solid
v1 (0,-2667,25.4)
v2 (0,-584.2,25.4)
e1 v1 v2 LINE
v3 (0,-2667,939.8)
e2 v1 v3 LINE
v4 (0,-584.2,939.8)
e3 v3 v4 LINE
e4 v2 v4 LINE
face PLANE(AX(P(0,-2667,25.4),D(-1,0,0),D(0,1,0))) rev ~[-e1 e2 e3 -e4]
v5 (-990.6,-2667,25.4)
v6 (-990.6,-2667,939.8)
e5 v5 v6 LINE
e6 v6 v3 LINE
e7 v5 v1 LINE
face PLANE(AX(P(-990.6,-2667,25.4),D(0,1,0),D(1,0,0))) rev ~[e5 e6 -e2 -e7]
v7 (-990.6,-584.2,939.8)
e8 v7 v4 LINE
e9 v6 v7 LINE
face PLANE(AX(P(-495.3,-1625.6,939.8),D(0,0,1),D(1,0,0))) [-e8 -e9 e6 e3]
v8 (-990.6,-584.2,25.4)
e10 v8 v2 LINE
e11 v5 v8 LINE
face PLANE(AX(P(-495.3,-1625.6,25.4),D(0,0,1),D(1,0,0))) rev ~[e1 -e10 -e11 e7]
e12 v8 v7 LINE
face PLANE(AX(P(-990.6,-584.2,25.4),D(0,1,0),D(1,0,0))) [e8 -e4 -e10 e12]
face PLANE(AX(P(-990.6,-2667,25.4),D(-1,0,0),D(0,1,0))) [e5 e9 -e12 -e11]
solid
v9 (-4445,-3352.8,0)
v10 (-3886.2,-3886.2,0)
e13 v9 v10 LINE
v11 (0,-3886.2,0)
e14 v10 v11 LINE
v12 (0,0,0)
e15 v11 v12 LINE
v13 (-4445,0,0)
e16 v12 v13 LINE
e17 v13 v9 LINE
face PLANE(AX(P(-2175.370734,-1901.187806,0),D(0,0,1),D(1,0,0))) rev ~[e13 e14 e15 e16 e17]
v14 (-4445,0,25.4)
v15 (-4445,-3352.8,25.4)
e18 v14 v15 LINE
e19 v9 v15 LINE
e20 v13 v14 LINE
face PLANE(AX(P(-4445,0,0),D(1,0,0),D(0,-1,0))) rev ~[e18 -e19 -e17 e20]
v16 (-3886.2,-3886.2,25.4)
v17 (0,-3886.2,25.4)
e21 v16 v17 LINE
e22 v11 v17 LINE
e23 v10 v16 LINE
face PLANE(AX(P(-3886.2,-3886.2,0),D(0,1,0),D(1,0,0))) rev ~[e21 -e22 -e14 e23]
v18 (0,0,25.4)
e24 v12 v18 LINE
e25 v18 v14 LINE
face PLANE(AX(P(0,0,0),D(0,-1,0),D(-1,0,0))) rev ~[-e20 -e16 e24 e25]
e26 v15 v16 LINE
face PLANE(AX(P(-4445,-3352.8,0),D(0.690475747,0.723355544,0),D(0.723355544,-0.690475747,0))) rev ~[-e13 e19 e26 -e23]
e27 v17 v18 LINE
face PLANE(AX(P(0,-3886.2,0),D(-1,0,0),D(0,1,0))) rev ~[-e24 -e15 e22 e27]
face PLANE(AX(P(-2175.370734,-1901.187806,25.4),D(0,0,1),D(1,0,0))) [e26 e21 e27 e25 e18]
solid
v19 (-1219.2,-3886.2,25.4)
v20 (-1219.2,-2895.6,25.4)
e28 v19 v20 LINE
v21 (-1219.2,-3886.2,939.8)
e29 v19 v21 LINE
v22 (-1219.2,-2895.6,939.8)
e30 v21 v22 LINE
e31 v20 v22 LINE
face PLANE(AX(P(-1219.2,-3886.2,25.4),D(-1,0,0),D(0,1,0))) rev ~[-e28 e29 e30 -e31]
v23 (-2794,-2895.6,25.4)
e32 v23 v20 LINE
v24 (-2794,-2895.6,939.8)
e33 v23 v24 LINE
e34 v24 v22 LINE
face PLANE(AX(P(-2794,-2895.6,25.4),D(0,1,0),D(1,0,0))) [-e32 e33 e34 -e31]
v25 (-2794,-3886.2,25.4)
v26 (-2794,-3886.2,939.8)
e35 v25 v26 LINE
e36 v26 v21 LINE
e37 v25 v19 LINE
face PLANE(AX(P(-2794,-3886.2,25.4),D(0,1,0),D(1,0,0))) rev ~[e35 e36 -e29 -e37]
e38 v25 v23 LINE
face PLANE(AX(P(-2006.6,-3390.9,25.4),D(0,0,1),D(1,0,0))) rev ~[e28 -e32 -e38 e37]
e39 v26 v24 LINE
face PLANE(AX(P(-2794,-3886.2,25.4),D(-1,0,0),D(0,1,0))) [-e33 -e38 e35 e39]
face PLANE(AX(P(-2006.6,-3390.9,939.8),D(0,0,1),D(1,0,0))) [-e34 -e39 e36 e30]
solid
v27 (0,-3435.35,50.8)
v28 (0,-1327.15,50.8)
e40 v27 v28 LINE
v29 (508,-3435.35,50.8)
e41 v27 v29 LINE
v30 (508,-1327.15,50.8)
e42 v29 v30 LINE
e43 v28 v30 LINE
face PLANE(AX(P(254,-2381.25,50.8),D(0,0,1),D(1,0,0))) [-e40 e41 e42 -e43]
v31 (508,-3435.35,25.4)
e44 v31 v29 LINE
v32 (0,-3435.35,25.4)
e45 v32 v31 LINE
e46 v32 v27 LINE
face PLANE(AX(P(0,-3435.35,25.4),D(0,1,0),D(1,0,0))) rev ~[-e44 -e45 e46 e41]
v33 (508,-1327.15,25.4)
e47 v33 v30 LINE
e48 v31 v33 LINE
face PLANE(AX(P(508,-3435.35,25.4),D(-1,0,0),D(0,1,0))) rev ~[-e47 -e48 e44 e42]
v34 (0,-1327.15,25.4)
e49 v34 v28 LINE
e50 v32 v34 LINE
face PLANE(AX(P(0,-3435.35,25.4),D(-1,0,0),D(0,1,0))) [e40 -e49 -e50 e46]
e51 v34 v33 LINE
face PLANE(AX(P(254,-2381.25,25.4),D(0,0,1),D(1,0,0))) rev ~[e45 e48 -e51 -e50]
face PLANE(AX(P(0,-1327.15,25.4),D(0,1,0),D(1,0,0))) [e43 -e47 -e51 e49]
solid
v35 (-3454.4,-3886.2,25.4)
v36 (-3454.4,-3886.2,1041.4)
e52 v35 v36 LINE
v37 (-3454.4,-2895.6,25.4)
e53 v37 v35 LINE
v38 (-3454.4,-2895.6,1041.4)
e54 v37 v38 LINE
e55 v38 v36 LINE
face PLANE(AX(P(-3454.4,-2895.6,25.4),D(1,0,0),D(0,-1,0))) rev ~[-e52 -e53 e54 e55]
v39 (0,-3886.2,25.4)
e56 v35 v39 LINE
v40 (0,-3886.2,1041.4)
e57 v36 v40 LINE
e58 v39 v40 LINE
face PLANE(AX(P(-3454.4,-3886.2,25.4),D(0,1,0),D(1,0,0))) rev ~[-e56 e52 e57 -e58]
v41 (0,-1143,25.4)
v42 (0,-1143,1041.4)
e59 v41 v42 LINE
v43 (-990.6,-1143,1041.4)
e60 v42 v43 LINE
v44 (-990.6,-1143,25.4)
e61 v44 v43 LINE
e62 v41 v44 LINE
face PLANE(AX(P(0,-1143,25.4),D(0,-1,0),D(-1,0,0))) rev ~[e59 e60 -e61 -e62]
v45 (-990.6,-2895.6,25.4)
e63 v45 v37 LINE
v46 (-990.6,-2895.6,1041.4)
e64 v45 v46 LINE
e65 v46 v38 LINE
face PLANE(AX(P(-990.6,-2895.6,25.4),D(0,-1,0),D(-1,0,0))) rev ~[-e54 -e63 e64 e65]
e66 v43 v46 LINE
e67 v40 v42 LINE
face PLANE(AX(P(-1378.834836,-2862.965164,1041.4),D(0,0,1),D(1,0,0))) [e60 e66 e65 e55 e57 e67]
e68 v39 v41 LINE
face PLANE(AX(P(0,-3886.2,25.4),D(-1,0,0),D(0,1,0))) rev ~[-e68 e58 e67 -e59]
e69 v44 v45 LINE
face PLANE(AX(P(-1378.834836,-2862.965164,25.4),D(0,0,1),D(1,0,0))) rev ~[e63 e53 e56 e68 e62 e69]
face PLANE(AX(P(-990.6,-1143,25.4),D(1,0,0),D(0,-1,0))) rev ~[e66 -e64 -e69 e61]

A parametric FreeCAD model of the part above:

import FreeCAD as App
import Part
import Sketcher
Q = App.Units.Quantity

doc = App.newDocument("Part")
body = doc.addObject("PartDesign::Body", "Body")

# Sketch on XY plane
sketch1 = body.newObject("Sketcher::SketchObject", "Sketch")
sketch1.AttachmentSupport = (doc.getObject("XY_Plane"), [""])
sketch1.MapMode = "FlatFace"
sketch1.addGeometry([
    Part.LineSegment(App.Vector(0, -3886.2, 0), App.Vector(0, 0, 0)),  # 0
    Part.LineSegment(App.Vector(0, 0, 0), App.Vector(-4445, 0, 0)),  # 1
    Part.LineSegment(App.Vector(-4445, 0, 0), App.Vector(-4445, -3352.8, 0)),  # 2
    Part.LineSegment(App.Vector(-4445, -3352.8, 0), App.Vector(-3886.2, -3886.2, 0)),  # 3
    Part.LineSegment(App.Vector(-3886.2, -3886.2, 0), App.Vector(0, -3886.2, 0)),  # 4
], False)
sketch1.addConstraint([
    Sketcher.Constraint("Coincident", 0, 2, 1, 1),
    Sketcher.Constraint("Coincident", 1, 2, 2, 1),
    Sketcher.Constraint("Coincident", 2, 2, 3, 1),
    Sketcher.Constraint("Coincident", 3, 2, 4, 1),
    Sketcher.Constraint("Coincident", 4, 2, 0, 1),
    Sketcher.Constraint("Vertical", 0),
    Sketcher.Constraint("Horizontal", 1),
    Sketcher.Constraint("Vertical", 2),
    Sketcher.Constraint("Horizontal", 4),
    Sketcher.Constraint("Coincident", 0, 2, -1, 1),
    Sketcher.Constraint("Equal", 4, 0),
    Sketcher.Constraint("DistanceX", 1, 2, 1, 1, Q("175 in")),
    Sketcher.Constraint("DistanceX", 4, 1, 4, 2, Q("153 in")),
    Sketcher.Constraint("DistanceY", 2, 2, 2, 1, Q("132 in")),
])
pad1 = body.newObject("PartDesign::Pad", "Pad")
pad1.Profile = sketch1
pad1.Length = Q("1 in")
body2 = doc.addObject("PartDesign::Body", "Body001")

# Sketch on XY plane
sketch2 = body2.newObject("Sketcher::SketchObject", "Sketch001")
sketch2.AttachmentSupport = (doc.getObject("XY_Plane001"), [""])
sketch2.MapMode = "FlatFace"
sketch2.AttachmentOffset = App.Placement(App.Vector(0, 0, 1 * 25.4), App.Rotation())
sketch2.addGeometry([
    Part.LineSegment(App.Vector(0, -1327.15, 0), App.Vector(0, -3435.35, 0)),
    Part.LineSegment(App.Vector(0, -3435.35, 0), App.Vector(508, -3435.35, 0)),
    Part.LineSegment(App.Vector(508, -3435.35, 0), App.Vector(508, -1327.15, 0)),
    Part.LineSegment(App.Vector(508, -1327.15, 0), App.Vector(0, -1327.15, 0)),
], False)
sketch2.addConstraint([
    Sketcher.Constraint("Coincident", 0, 2, 1, 1),
    Sketcher.Constraint("Coincident", 1, 2, 2, 1),
    Sketcher.Constraint("Coincident", 2, 2, 3, 1),
    Sketcher.Constraint("Coincident", 3, 2, 0, 1),
    Sketcher.Constraint("Vertical", 0),
    Sketcher.Constraint("Horizontal", 1),
    Sketcher.Constraint("Vertical", 2),
    Sketcher.Constraint("Horizontal", 3),
    Sketcher.Constraint("PointOnObject", 0, 2, -2),
    Sketcher.Constraint("DistanceX", 1, 1, 1, 2, Q("20 in")),
    Sketcher.Constraint("DistanceY", 0, 2, 0, 1, Q("83 in")),
    Sketcher.Constraint("DistanceY", 0, 2, -1, 1, Q("135.25 in")),
])
pad2 = body2.newObject("PartDesign::Pad", "Pad001")
pad2.Profile = sketch2
pad2.Length = Q("1 in")
body3 = doc.addObject("PartDesign::Body", "Body002")
body3.AllowCompound = True

# Sketch on XY plane
sketch3 = body3.newObject("Sketcher::SketchObject", "Sketch002")
sketch3.AttachmentSupport = (doc.getObject("XY_Plane002"), [""])
sketch3.MapMode = "FlatFace"
sketch3.AttachmentOffset = App.Placement(App.Vector(0, 0, 1 * 25.4), App.Rotation())
sketch3.addGeometry([
    Part.LineSegment(App.Vector(-2794, -2895.6, 0), App.Vector(-2794, -3886.2, 0)),  # 0
    Part.LineSegment(App.Vector(-2794, -3886.2, 0), App.Vector(-1219.2, -3886.2, 0)),  # 1
    Part.LineSegment(App.Vector(-1219.2, -3886.2, 0), App.Vector(-1219.2, -2895.6, 0)),  # 2
    Part.LineSegment(App.Vector(-1219.2, -2895.6, 0), App.Vector(-2794, -2895.6, 0)),  # 3
    Part.LineSegment(App.Vector(-990.6, -584.2, 0), App.Vector(-990.6, -2667, 0)),  # 4
    Part.LineSegment(App.Vector(-990.6, -2667, 0), App.Vector(0, -2667, 0)),  # 5
    Part.LineSegment(App.Vector(0, -2667, 0), App.Vector(0, -584.2, 0)),  # 6
    Part.LineSegment(App.Vector(0, -584.2, 0), App.Vector(-990.6, -584.2, 0)),  # 7
], False)
sketch3.addConstraint([
    Sketcher.Constraint("Coincident", 0, 2, 1, 1),
    Sketcher.Constraint("Coincident", 1, 2, 2, 1),
    Sketcher.Constraint("Coincident", 2, 2, 3, 1),
    Sketcher.Constraint("Coincident", 3, 2, 0, 1),
    Sketcher.Constraint("Coincident", 4, 2, 5, 1),
    Sketcher.Constraint("Coincident", 5, 2, 6, 1),
    Sketcher.Constraint("Coincident", 6, 2, 7, 1),
    Sketcher.Constraint("Coincident", 7, 2, 4, 1),
    Sketcher.Constraint("Vertical", 0),
    Sketcher.Constraint("Horizontal", 1),
    Sketcher.Constraint("Vertical", 2),
    Sketcher.Constraint("Horizontal", 3),
    Sketcher.Constraint("Vertical", 4),
    Sketcher.Constraint("Horizontal", 5),
    Sketcher.Constraint("Vertical", 6),
    Sketcher.Constraint("Horizontal", 7),
    Sketcher.Constraint("PointOnObject", 5, 2, -2),
    Sketcher.Constraint("Equal", 7, 0),
    Sketcher.Constraint("DistanceX", 1, 1, 1, 2, Q("62 in")),
    Sketcher.Constraint("DistanceX", 5, 1, 5, 2, Q("39 in")),
    Sketcher.Constraint("DistanceY", 4, 2, 4, 1, Q("82 in")),
    Sketcher.Constraint("DistanceX", 0, 2, -1, 1, Q("110 in")),
    Sketcher.Constraint("DistanceY", 0, 2, -1, 1, Q("153 in")),
    Sketcher.Constraint("DistanceY", 4, 2, -1, 1, Q("105 in")),
])
pad3 = body3.newObject("PartDesign::Pad", "Pad002")
pad3.Profile = sketch3
pad3.Length = Q("36 in")
body4 = doc.addObject("PartDesign::Body", "Body003")

# Sketch on XY plane
sketch4 = body4.newObject("Sketcher::SketchObject", "Sketch003")
sketch4.AttachmentSupport = (doc.getObject("XY_Plane003"), [""])
sketch4.MapMode = "FlatFace"
sketch4.AttachmentOffset = App.Placement(App.Vector(0, 0, 1 * 25.4), App.Rotation())
sketch4.addGeometry([
    Part.LineSegment(App.Vector(-3454.4, -2895.6, 0), App.Vector(-3454.4, -3886.2, 0)),  # 0
    Part.LineSegment(App.Vector(-3454.4, -3886.2, 0), App.Vector(0, -3886.2, 0)),  # 1
    Part.LineSegment(App.Vector(0, -3886.2, 0), App.Vector(0, -1143, 0)),  # 2
    Part.LineSegment(App.Vector(0, -1143, 0), App.Vector(-990.6, -1143, 0)),  # 3
    Part.LineSegment(App.Vector(-990.6, -1143, 0), App.Vector(-990.6, -2895.6, 0)),  # 4
    Part.LineSegment(App.Vector(-990.6, -2895.6, 0), App.Vector(-3454.4, -2895.6, 0)),  # 5
], False)
sketch4.addConstraint([
    Sketcher.Constraint("Coincident", 0, 2, 1, 1),
    Sketcher.Constraint("Coincident", 1, 2, 2, 1),
    Sketcher.Constraint("Coincident", 2, 2, 3, 1),
    Sketcher.Constraint("Coincident", 3, 2, 4, 1),
    Sketcher.Constraint("Coincident", 4, 2, 5, 1),
    Sketcher.Constraint("Coincident", 5, 2, 0, 1),
    Sketcher.Constraint("Vertical", 0),
    Sketcher.Constraint("Horizontal", 1),
    Sketcher.Constraint("Vertical", 2),
    Sketcher.Constraint("Horizontal", 3),
    Sketcher.Constraint("Vertical", 4),
    Sketcher.Constraint("Horizontal", 5),
    Sketcher.Constraint("PointOnObject", 1, 2, -2),
    Sketcher.Constraint("Equal", 3, 0),
    Sketcher.Constraint("DistanceX", 1, 1, 1, 2, Q("136 in")),
    Sketcher.Constraint("DistanceX", 3, 2, 3, 1, Q("39 in")),
    Sketcher.Constraint("DistanceY", 2, 1, 2, 2, Q("108 in")),
    Sketcher.Constraint("DistanceY", 0, 2, -1, 1, Q("153 in")),
])
pad4 = body4.newObject("PartDesign::Pad", "Pad003")
pad4.Profile = sketch4
pad4.Length = Q("40 in")

doc.recompute()
